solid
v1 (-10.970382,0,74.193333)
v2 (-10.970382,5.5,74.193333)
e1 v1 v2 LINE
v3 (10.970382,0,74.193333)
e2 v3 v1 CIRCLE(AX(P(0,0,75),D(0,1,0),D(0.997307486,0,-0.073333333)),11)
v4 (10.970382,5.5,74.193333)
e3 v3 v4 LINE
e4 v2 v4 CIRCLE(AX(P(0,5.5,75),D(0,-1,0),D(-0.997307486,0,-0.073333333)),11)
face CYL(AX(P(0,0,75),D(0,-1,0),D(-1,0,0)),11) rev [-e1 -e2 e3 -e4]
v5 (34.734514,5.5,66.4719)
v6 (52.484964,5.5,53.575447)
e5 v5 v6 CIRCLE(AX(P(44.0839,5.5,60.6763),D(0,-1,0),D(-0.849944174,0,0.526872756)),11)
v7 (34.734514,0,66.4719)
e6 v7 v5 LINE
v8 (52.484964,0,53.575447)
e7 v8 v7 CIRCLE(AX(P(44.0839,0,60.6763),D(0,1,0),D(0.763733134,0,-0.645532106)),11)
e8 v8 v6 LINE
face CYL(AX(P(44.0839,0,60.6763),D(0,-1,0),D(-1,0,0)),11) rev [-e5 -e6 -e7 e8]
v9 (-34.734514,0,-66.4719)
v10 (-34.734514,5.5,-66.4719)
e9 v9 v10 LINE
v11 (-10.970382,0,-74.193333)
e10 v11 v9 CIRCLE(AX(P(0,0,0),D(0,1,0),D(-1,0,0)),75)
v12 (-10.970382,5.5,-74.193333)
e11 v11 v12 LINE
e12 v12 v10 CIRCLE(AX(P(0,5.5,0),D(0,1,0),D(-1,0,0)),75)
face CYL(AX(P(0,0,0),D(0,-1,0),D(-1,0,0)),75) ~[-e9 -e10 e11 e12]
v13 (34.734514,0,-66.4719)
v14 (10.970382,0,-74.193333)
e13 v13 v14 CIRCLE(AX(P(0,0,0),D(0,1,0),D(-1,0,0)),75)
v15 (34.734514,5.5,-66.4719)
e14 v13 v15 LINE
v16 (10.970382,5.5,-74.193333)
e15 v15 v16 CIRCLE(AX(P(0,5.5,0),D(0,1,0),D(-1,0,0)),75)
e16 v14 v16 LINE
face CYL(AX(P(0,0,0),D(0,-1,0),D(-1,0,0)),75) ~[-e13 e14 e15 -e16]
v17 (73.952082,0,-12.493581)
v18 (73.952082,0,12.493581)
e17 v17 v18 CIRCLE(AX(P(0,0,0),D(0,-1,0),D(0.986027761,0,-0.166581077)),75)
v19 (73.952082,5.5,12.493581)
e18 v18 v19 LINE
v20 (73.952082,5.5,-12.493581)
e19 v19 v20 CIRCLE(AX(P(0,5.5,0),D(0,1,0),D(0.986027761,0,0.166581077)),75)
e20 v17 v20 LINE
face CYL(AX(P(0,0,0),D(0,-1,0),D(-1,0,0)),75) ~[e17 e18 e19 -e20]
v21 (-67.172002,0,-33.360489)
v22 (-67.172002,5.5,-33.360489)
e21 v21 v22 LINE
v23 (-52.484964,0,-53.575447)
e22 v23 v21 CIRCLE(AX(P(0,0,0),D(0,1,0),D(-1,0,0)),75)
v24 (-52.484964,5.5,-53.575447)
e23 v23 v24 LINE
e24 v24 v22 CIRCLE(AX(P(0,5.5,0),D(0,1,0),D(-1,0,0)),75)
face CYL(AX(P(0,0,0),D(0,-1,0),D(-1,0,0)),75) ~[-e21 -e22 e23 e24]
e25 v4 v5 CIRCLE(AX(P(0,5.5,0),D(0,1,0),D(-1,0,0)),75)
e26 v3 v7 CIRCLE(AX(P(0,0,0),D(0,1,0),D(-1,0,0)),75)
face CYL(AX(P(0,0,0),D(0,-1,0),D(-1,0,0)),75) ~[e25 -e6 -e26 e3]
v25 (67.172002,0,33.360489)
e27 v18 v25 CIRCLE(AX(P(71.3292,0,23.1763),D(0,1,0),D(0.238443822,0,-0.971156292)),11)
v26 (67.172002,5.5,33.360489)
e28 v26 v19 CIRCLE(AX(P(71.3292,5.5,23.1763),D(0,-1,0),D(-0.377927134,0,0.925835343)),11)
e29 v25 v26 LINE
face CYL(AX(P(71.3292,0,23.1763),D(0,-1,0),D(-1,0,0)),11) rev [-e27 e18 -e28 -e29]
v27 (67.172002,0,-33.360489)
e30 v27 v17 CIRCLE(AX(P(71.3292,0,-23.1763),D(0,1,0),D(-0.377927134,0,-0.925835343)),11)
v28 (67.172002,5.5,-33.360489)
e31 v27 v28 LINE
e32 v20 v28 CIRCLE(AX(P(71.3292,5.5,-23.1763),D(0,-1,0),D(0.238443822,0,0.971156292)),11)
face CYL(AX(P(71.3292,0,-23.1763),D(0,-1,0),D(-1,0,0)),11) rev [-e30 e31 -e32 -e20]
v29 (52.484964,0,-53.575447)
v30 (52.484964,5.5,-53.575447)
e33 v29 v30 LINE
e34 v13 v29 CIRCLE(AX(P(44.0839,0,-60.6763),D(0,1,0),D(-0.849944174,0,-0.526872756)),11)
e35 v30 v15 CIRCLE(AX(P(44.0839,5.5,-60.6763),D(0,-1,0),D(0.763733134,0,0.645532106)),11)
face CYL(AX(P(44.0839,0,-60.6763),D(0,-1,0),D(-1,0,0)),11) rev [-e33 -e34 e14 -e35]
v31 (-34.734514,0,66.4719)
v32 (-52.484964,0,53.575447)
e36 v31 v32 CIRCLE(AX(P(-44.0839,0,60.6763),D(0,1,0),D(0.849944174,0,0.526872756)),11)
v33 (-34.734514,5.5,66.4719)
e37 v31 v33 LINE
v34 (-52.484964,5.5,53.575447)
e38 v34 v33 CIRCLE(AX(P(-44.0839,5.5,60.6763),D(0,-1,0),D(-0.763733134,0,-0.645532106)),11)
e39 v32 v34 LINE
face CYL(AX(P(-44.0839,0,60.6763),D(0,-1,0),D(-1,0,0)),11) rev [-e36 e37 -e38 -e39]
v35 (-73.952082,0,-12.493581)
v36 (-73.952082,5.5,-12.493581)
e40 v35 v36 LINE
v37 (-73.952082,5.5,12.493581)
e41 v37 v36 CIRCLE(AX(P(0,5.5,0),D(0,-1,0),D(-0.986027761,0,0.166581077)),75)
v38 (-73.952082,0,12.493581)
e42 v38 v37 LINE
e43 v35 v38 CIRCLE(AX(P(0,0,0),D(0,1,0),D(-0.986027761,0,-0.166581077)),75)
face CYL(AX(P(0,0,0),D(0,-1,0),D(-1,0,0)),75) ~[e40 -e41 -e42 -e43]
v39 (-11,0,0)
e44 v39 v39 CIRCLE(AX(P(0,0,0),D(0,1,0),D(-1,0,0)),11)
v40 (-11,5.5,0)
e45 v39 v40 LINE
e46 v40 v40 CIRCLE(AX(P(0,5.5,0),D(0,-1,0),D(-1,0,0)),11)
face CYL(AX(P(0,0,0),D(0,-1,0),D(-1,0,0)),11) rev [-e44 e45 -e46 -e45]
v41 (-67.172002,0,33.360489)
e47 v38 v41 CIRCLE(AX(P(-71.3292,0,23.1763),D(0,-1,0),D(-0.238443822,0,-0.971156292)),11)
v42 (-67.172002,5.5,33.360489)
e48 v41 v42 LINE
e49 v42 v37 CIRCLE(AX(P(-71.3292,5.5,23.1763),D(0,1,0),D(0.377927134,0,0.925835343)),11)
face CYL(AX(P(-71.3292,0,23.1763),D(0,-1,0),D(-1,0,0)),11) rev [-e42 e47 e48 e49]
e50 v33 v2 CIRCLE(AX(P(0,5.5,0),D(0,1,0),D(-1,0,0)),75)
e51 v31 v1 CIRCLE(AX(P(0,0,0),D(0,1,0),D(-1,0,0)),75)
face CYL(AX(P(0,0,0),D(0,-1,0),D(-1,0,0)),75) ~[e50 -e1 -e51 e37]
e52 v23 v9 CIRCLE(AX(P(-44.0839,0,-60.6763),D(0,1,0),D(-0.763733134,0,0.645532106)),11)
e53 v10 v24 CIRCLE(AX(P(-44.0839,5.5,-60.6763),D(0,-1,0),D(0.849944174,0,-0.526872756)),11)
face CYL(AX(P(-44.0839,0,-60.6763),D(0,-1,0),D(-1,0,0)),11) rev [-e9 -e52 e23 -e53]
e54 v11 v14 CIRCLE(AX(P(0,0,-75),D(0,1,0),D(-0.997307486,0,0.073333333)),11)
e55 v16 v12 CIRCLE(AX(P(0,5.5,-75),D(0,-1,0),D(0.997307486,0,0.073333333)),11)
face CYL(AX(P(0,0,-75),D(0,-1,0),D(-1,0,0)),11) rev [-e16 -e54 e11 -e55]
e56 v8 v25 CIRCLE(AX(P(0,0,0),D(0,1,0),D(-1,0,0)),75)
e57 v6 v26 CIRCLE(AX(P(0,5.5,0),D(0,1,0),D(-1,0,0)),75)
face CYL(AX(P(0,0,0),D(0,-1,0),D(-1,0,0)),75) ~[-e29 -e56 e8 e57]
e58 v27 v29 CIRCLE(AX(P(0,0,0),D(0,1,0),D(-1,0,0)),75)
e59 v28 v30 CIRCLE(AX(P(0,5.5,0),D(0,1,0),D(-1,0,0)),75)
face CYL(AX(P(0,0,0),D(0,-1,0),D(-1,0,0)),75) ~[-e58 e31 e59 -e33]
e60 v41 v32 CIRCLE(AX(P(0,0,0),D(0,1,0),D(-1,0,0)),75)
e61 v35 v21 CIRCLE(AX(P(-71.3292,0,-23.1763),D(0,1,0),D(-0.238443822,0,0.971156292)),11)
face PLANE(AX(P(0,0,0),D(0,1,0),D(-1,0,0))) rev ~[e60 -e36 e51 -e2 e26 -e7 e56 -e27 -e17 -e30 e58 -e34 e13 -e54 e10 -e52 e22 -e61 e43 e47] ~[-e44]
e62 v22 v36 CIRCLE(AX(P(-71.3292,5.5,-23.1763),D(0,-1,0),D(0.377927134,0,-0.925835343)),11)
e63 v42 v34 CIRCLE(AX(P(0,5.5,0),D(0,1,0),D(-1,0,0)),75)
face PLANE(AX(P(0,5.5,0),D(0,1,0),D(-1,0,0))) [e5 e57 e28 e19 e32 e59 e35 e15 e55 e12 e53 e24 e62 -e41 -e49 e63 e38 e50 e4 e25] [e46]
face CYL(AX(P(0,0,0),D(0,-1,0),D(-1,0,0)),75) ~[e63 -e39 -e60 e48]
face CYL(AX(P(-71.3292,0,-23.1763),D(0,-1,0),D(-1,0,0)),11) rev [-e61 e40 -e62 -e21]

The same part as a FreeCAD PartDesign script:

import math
import FreeCAD as App
import Part
import Sketcher
from FreeCAD import Vector
Q = App.Units.Quantity

doc = App.newDocument("Part")
body = doc.addObject("PartDesign::Body", "Body")

# Sketch on XZ plane
sketch1 = body.newObject("Sketcher::SketchObject", "Sketch")
sketch1.AttachmentSupport = (doc.getObject("XZ_Plane"), [""])
sketch1.MapMode = "FlatFace"
sketch1.addGeometry([
    Part.ArcOfCircle(Part.Circle(Vector(-71, 23, 0), Vector(0, 0, 1), 11), math.radians(-104), math.radians(68)),  # 0
    Part.ArcOfCircle(Part.Circle(Vector(0, 0, 0), Vector(0, 0, 1), 75), math.radians(134.41), math.radians(153.59)),  # 1
    Part.ArcOfCircle(Part.Circle(Vector(-44, 61, 0), Vector(0, 0, 1), 11), math.radians(-140), math.radians(32)),  # 2
    Part.ArcOfCircle(Part.Circle(Vector(0, 0, 0), Vector(0, 0, 1), 75), math.radians(98.41), math.radians(117.59)),  # 3
    Part.ArcOfCircle(Part.Circle(Vector(0, 75, 0), Vector(0, 0, 1), 11), math.radians(-176), math.radians(-4)),  # 4
    Part.ArcOfCircle(Part.Circle(Vector(0, 0, 0), Vector(0, 0, 1), 75), math.radians(62.41), math.radians(81.59)),  # 5
    Part.ArcOfCircle(Part.Circle(Vector(44, 61, 0), Vector(0, 0, 1), 11), math.radians(148), math.radians(320)),  # 6
    Part.ArcOfCircle(Part.Circle(Vector(0, 0, 0), Vector(0, 0, 1), 75), math.radians(26.41), math.radians(45.59)),  # 7
    Part.ArcOfCircle(Part.Circle(Vector(71, 23, 0), Vector(0, 0, 1), 11), math.radians(112), math.radians(284)),  # 8
    Part.ArcOfCircle(Part.Circle(Vector(0, 0, 0), Vector(0, 0, 1), 75), math.radians(-9.59), math.radians(9.59)),  # 9
    Part.ArcOfCircle(Part.Circle(Vector(71, -23, 0), Vector(0, 0, 1), 11), math.radians(76), math.radians(248)),  # 10
    Part.ArcOfCircle(Part.Circle(Vector(0, 0, 0), Vector(0, 0, 1), 75), math.radians(-45.59), math.radians(-26.41)),  # 11
    Part.ArcOfCircle(Part.Circle(Vector(44, -61, 0), Vector(0, 0, 1), 11), math.radians(40), math.radians(212)),  # 12
    Part.ArcOfCircle(Part.Circle(Vector(0, 0, 0), Vector(0, 0, 1), 75), math.radians(-81.59), math.radians(-62.41)),  # 13
    Part.ArcOfCircle(Part.Circle(Vector(0, -75, 0), Vector(0, 0, 1), 11), math.radians(4), math.radians(176)),  # 14
    Part.ArcOfCircle(Part.Circle(Vector(0, 0, 0), Vector(0, 0, 1), 75), math.radians(-117.59), math.radians(-98.41)),  # 15
    Part.ArcOfCircle(Part.Circle(Vector(-44, -61, 0), Vector(0, 0, 1), 11), math.radians(-32), math.radians(140)),  # 16
    Part.ArcOfCircle(Part.Circle(Vector(0, 0, 0), Vector(0, 0, 1), 75), math.radians(-153.59), math.radians(-134.41)),  # 17
    Part.ArcOfCircle(Part.Circle(Vector(-71, -23, 0), Vector(0, 0, 1), 11), math.radians(-68), math.radians(104)),  # 18
    Part.ArcOfCircle(Part.Circle(Vector(0, 0, 0), Vector(0, 0, 1), 75), math.radians(170.41), math.radians(189.59)),  # 19
    Part.Circle(Vector(0, 0, 0), Vector(0, 0, 1), 11),  # 20
], False)
sketch1.addConstraint([
    Sketcher.Constraint("Coincident", 0, 2, 1, 2),
    Sketcher.Constraint("Coincident", 1, 1, 2, 1),
    Sketcher.Constraint("Coincident", 2, 2, 3, 2),
    Sketcher.Constraint("Coincident", 3, 1, 4, 1),
    Sketcher.Constraint("Coincident", 4, 2, 5, 2),
    Sketcher.Constraint("Coincident", 5, 1, 6, 1),
    Sketcher.Constraint("Coincident", 6, 2, 7, 2),
    Sketcher.Constraint("Coincident", 7, 1, 8, 1),
    Sketcher.Constraint("Coincident", 8, 2, 9, 2),
    Sketcher.Constraint("Coincident", 9, 1, 10, 1),
    Sketcher.Constraint("Coincident", 10, 2, 11, 2),
    Sketcher.Constraint("Coincident", 11, 1, 12, 1),
    Sketcher.Constraint("Coincident", 12, 2, 13, 2),
    Sketcher.Constraint("Coincident", 13, 1, 14, 1),
    Sketcher.Constraint("Coincident", 14, 2, 15, 2),
    Sketcher.Constraint("Coincident", 15, 1, 16, 1),
    Sketcher.Constraint("Coincident", 16, 2, 17, 2),
    Sketcher.Constraint("Coincident", 17, 1, 18, 1),
    Sketcher.Constraint("Coincident", 18, 2, 19, 2),
    Sketcher.Constraint("Coincident", 19, 1, 0, 1),
    Sketcher.Constraint("Coincident", 1, 3, -1, 1),
    Sketcher.Constraint("Coincident", 3, 3, -1, 1),
    Sketcher.Constraint("Coincident", 5, 3, -1, 1),
    Sketcher.Constraint("Coincident", 7, 3, -1, 1),
    Sketcher.Constraint("Coincident", 9, 3, -1, 1),
    Sketcher.Constraint("Coincident", 11, 3, -1, 1),
    Sketcher.Constraint("Coincident", 13, 3, -1, 1),
    Sketcher.Constraint("Coincident", 15, 3, -1, 1),
    Sketcher.Constraint("Coincident", 17, 3, -1, 1),
    Sketcher.Constraint("Coincident", 19, 3, -1, 1),
    Sketcher.Constraint("Coincident", 20, 3, -1, 1),
    Sketcher.Constraint("Equal", 0, 2),
    Sketcher.Constraint("Equal", 1, 3),
    Sketcher.Constraint("Equal", 2, 4),
    Sketcher.Constraint("Equal", 3, 5),
    Sketcher.Constraint("Equal", 4, 6),
    Sketcher.Constraint("Equal", 5, 7),
    Sketcher.Constraint("Equal", 6, 8),
    Sketcher.Constraint("Equal", 7, 9),
    Sketcher.Constraint("Equal", 8, 10),
    Sketcher.Constraint("Equal", 9, 11),
    Sketcher.Constraint("Equal", 10, 12),
    Sketcher.Constraint("Equal", 11, 13),
    Sketcher.Constraint("Equal", 12, 14),
    Sketcher.Constraint("Equal", 13, 15),
    Sketcher.Constraint("Equal", 14, 16),
    Sketcher.Constraint("Equal", 15, 17),
    Sketcher.Constraint("Equal", 16, 18),
    Sketcher.Constraint("Equal", 17, 19),
    Sketcher.Constraint("Equal", 18, 20),
    Sketcher.Constraint("Symmetric", 0, 3, 10, 3, -1, 1),
    Sketcher.Constraint("Symmetric", 2, 3, 12, 3, -1, 1),
    Sketcher.Constraint("Symmetric", 4, 3, 14, 3, -1, 1),
    Sketcher.Constraint("Symmetric", 6, 3, 16, 3, -1, 1),
    Sketcher.Constraint("Symmetric", 8, 3, 18, 3, -1, 1),
    Sketcher.Constraint("Symmetric", 2, 3, 6, 3, -2),
    Sketcher.Constraint("Symmetric", 0, 3, 8, 3, -2),
    Sketcher.Constraint("PointOnObject", 4, 3, -2),
    Sketcher.Constraint("Diameter", 20, Q("22 mm")),
    Sketcher.Constraint("Radius", 1, Q("75 mm")),
    Sketcher.Constraint("DistanceY", -1, 1, 4, 3, Q("75 mm")),
    Sketcher.Constraint("DistanceY", 0, 3, 2, 3, Q("37.5 mm")),
    Sketcher.Constraint("DistanceX", 7, 1, 8, 2, Q("6.78 mm")),
    Sketcher.Constraint("DistanceY", 10, 3, 8, 2, Q("35.67 mm")),
    Sketcher.Constraint("DistanceX", 2, 3, -1, 1, Q("44.084 mm")),
])
pad1 = body.newObject("PartDesign::Pad", "Pad")
pad1.Profile = sketch1
pad1.Length = 5.5
pad1.Reversed = True

doc.recompute()
